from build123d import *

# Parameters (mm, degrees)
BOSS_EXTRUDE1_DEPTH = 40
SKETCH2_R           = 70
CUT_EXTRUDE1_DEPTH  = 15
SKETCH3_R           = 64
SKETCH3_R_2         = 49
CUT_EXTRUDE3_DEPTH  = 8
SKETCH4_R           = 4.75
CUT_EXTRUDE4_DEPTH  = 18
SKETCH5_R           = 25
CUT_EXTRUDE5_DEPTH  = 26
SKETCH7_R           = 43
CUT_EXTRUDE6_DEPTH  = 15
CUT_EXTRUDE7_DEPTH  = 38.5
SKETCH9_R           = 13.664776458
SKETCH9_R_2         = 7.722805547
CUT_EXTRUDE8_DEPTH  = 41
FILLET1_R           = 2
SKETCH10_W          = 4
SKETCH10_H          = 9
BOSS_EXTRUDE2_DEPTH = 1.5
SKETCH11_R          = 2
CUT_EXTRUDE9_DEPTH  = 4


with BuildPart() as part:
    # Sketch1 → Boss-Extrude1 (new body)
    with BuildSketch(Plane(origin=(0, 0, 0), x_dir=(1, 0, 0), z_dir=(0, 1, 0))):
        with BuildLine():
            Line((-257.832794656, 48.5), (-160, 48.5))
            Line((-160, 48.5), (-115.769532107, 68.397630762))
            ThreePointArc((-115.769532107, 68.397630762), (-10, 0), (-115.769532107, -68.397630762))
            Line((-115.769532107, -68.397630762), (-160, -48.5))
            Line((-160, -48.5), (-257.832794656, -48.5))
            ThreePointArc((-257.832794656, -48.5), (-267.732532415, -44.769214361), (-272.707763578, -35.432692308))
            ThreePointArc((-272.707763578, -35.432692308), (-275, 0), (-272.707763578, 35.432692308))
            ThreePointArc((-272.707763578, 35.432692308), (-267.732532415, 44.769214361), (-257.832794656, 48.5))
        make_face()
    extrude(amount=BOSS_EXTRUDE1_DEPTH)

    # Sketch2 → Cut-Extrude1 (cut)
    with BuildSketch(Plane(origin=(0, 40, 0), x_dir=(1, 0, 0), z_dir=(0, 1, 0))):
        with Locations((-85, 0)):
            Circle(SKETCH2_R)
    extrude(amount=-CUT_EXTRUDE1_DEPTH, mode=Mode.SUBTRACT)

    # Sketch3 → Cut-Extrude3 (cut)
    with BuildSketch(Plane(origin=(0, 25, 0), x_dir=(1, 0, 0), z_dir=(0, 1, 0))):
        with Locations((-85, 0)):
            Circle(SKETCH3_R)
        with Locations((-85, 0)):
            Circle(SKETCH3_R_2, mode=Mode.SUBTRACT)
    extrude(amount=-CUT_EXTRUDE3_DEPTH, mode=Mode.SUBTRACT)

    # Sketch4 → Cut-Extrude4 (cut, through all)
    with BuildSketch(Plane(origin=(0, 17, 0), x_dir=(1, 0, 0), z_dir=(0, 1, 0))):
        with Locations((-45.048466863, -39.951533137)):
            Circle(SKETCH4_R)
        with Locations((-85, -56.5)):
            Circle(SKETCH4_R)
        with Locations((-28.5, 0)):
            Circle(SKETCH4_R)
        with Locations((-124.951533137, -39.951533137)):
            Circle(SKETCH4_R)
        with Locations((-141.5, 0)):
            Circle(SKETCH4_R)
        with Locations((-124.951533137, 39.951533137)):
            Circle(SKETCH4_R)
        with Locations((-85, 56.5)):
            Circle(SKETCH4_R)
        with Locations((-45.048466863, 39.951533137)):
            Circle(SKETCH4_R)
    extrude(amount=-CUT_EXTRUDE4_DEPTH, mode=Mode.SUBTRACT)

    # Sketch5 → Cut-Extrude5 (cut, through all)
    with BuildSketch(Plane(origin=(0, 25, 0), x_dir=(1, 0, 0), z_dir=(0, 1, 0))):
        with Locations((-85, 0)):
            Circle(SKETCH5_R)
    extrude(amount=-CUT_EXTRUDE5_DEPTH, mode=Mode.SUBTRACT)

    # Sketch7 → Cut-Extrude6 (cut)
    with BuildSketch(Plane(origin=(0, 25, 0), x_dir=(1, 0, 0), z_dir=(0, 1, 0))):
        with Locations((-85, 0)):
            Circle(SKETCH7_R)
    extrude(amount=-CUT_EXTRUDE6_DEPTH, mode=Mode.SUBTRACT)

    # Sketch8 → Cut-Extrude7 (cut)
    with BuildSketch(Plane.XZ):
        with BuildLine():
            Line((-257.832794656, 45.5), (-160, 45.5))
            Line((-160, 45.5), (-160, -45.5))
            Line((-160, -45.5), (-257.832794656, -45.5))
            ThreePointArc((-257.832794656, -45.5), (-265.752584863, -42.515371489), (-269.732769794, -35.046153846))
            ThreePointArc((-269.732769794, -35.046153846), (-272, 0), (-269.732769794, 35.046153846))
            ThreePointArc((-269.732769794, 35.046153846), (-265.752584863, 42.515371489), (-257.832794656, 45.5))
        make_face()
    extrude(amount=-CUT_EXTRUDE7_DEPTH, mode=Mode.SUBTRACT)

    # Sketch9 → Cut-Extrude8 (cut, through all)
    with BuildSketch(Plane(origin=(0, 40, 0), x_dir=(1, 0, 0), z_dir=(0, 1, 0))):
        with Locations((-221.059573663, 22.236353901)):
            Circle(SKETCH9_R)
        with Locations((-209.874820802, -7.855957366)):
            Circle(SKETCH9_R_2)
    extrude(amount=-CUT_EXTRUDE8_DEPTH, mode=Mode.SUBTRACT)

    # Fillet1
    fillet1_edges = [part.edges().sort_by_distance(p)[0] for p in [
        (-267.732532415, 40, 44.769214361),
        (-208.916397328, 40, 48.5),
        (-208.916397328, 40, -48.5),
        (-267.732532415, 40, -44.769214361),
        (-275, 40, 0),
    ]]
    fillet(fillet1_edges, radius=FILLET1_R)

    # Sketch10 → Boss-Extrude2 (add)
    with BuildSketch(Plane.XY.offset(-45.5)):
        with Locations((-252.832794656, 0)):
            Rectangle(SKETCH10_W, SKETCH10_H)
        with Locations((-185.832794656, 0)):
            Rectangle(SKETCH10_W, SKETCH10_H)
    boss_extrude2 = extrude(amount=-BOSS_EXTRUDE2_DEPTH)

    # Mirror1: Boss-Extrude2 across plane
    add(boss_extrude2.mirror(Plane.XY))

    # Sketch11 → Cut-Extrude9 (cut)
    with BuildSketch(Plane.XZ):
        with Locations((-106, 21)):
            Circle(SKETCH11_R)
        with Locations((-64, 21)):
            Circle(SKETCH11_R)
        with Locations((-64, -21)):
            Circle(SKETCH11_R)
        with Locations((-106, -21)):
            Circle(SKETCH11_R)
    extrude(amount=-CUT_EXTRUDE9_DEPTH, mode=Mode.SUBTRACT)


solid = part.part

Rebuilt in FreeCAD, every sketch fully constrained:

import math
import FreeCAD as App
import Part
import Sketcher
from FreeCAD import Vector
Q = App.Units.Quantity


def edges_at(feature, points):
    """Names of the edges that pass closest to the given points."""
    edges = feature.Shape.Edges
    near = lambda p: min(range(len(edges)), key=lambda i: edges[i].distToShape(Part.Vertex(*p))[0])
    return sorted({f"Edge{near(p) + 1}" for p in points})

doc = App.newDocument("Part")
params = doc.addObject("Spreadsheet::Sheet", "Params")
for row, (alias, value) in enumerate([
    ("sketch1_radius", "15 mm"),
    ("sketch1_radius2", "275 mm"),
    ("sketch1_radius3", "75 mm"),
    ("pad1_length", "40 mm"),
    ("sketch2_diameter", "140 mm"),
    ("pocket1_length", "15 mm"),
    ("sketch3_diameter", "128 mm"),
    ("sketch3_diameter2", "98 mm"),
    ("pocket2_length", "8 mm"),
    ("sketch4_diameter", "9.5 mm"),
    ("sketch5_diameter", "50 mm"),
    ("sketch6_diameter", "86 mm"),
    ("pocket5_length", "15 mm"),
    ("sketch7_radius", "12 mm"),
    ("sketch7_radius2", "272 mm"),
    ("sketch7_height", "91 mm"),
    ("pocket6_length", "38.5 mm"),
    ("fillet_radius", "2 mm"),
    ("sketch9_width", "4 mm"),
    ("sketch9_height", "9 mm"),
    ("pad2_length", "1.5 mm"),
    ("sketch10_diameter", "4 mm"),
    ("pocket8_length", "4 mm"),
], start=1):
    params.set(f"A{row}", alias)
    params.set(f"B{row}", "=" + value)
    params.setAlias(f"B{row}", alias)

body = doc.addObject("PartDesign::Body", "Body")

# Sketch on XZ plane
sketch1 = body.newObject("Sketcher::SketchObject", "Sketch")
sketch1.AttachmentSupport = (doc.getObject("XZ_Plane"), [""])
sketch1.MapMode = "FlatFace"
sketch1.addGeometry([
    Part.LineSegment(Vector(-160, -48.5, 0), Vector(-257.832795, -48.5, 0)),  # 0
    Part.ArcOfCircle(Part.Circle(Vector(-257.832795, -33.5, 0), Vector(0, 0, 1), 15), math.radians(-172.597079), math.radians(-90)),  # 1
    Part.ArcOfCircle(Part.Circle(Vector(0, 0, 0), Vector(0, 0, 1), 275), math.radians(172.597079), math.radians(187.402921)),  # 2
    Part.ArcOfCircle(Part.Circle(Vector(-257.832795, 33.5, 0), Vector(0, 0, 1), 15), math.radians(90), math.radians(172.597079)),  # 3
    Part.LineSegment(Vector(-257.832795, 48.5, 0), Vector(-160, 48.5, 0)),  # 4
    Part.LineSegment(Vector(-160, 48.5, 0), Vector(-115.769532, 68.397631, 0)),  # 5
    Part.ArcOfCircle(Part.Circle(Vector(-85, 0, 0), Vector(0, 0, 1), 75), math.radians(-114.221196), math.radians(114.221196)),  # 6
    Part.LineSegment(Vector(-115.769532, -68.397631, 0), Vector(-160, -48.5, 0)),  # 7
], False)
sketch1.addConstraint([
    Sketcher.Constraint("Tangent", 0, 2, 1, 2),
    Sketcher.Constraint("Tangent", 1, 1, 2, 2),
    Sketcher.Constraint("Tangent", 2, 1, 3, 2),
    Sketcher.Constraint("Tangent", 3, 1, 4, 1),
    Sketcher.Constraint("Coincident", 4, 2, 5, 1),
    Sketcher.Constraint("Tangent", 5, 2, 6, 2),
    Sketcher.Constraint("Tangent", 6, 1, 7, 1),
    Sketcher.Constraint("Coincident", 7, 2, 0, 1),
    Sketcher.Constraint("Horizontal", 0),
    Sketcher.Constraint("Horizontal", 4),
    Sketcher.Constraint("Coincident", 2, 3, -1, 1),
    Sketcher.Constraint("Equal", 1, 3),
    Sketcher.Constraint("Symmetric", 5, 2, 6, 1, -1),
    Sketcher.Constraint("Vertical", 1, 3, 3, 3),
    Sketcher.Constraint("Radius", 1, Q("15 mm")),
    Sketcher.Constraint("Radius", 2, Q("275 mm")),
    Sketcher.Constraint("Radius", 6, Q("75 mm")),
    Sketcher.Constraint("DistanceX", 6, 3, -1, 1, Q("85 mm")),
    Sketcher.Constraint("DistanceX", 4, 2, -1, 1, Q("160 mm")),
    Sketcher.Constraint("DistanceY", 1, 3, 3, 3, Q("67 mm")),
])
sketch1.setExpression("Constraints[14]", "Params.sketch1_radius")
sketch1.setExpression("Constraints[15]", "Params.sketch1_radius2")
sketch1.setExpression("Constraints[16]", "Params.sketch1_radius3")
pad1 = body.newObject("PartDesign::Pad", "Pad")
pad1.Profile = sketch1
pad1.setExpression("Length", "Params.pad1_length")
pad1.Reversed = True

# Sketch on XZ plane
sketch2 = body.newObject("Sketcher::SketchObject", "Sketch001")
sketch2.AttachmentSupport = (doc.getObject("XZ_Plane"), [""])
sketch2.MapMode = "FlatFace"
sketch2.AttachmentOffset = App.Placement(Vector(0, 0, -40), App.Rotation())
sketch2.addGeometry(Part.Circle(Vector(-85, 0, 0), Vector(0, 0, 1), 70), False)
sketch2.addConstraint([
    Sketcher.Constraint("PointOnObject", 0, 3, -1),
    Sketcher.Constraint("Diameter", 0, Q("140 mm")),
    Sketcher.Constraint("DistanceX", 0, 3, -1, 1, Q("85 mm")),
])
sketch2.setExpression("Constraints[1]", "Params.sketch2_diameter")
pocket1 = body.newObject("PartDesign::Pocket", "Pocket")
pocket1.Profile = sketch2
pocket1.setExpression("Length", "Params.pocket1_length")
pocket1.Reversed = True

# Sketch on XZ plane
sketch3 = body.newObject("Sketcher::SketchObject", "Sketch002")
sketch3.AttachmentSupport = (doc.getObject("XZ_Plane"), [""])
sketch3.MapMode = "FlatFace"
sketch3.AttachmentOffset = App.Placement(Vector(0, 0, -25), App.Rotation())
sketch3.addGeometry([
    Part.Circle(Vector(-85, 0, 0), Vector(0, 0, 1), 64),
    Part.Circle(Vector(-85, 0, 0), Vector(0, 0, 1), 49),
], False)
sketch3.addConstraint([
    Sketcher.Constraint("Coincident", 1, 3, 0, 3),
    Sketcher.Constraint("PointOnObject", 0, 3, -1),
    Sketcher.Constraint("Diameter", 0, Q("128 mm")),
    Sketcher.Constraint("Diameter", 1, Q("98 mm")),
    Sketcher.Constraint("DistanceX", 0, 3, -1, 1, Q("85 mm")),
])
sketch3.setExpression("Constraints[2]", "Params.sketch3_diameter")
sketch3.setExpression("Constraints[3]", "Params.sketch3_diameter2")
pocket2 = body.newObject("PartDesign::Pocket", "Pocket001")
pocket2.Profile = sketch3
pocket2.setExpression("Length", "Params.pocket2_length")
pocket2.Reversed = True

# Sketch on XZ plane
sketch4 = body.newObject("Sketcher::SketchObject", "Sketch003")
sketch4.AttachmentSupport = (doc.getObject("XZ_Plane"), [""])
sketch4.MapMode = "FlatFace"
sketch4.AttachmentOffset = App.Placement(Vector(0, 0, -17), App.Rotation())
sketch4.addGeometry([
    Part.Circle(Vector(-45.048467, 39.951533, 0), Vector(0, 0, 1), 4.75),  # 0
    Part.Circle(Vector(-85, 56.5, 0), Vector(0, 0, 1), 4.75),  # 1
    Part.Circle(Vector(-28.5, 0, 0), Vector(0, 0, 1), 4.75),  # 2
    Part.Circle(Vector(-124.951533, 39.951533, 0), Vector(0, 0, 1), 4.75),  # 3
    Part.Circle(Vector(-141.5, 0, 0), Vector(0, 0, 1), 4.75),  # 4
    Part.Circle(Vector(-124.951533, -39.951533, 0), Vector(0, 0, 1), 4.75),  # 5
    Part.Circle(Vector(-85, -56.5, 0), Vector(0, 0, 1), 4.75),  # 6
    Part.Circle(Vector(-45.048467, -39.951533, 0), Vector(0, 0, 1), 4.75),  # 7
], False)
sketch4.addConstraint([
    Sketcher.Constraint("Equal", 0, 1),
    Sketcher.Constraint("Equal", 1, 2),
    Sketcher.Constraint("Equal", 2, 3),
    Sketcher.Constraint("Equal", 3, 4),
    Sketcher.Constraint("Equal", 4, 5),
    Sketcher.Constraint("Equal", 5, 6),
    Sketcher.Constraint("Equal", 6, 7),
    Sketcher.Constraint("Symmetric", 3, 3, 5, 3, -1),
    Sketcher.Constraint("Symmetric", 1, 3, 6, 3, -1),
    Sketcher.Constraint("Symmetric", 0, 3, 7, 3, -1),
    Sketcher.Constraint("PointOnObject", 2, 3, -1),
    Sketcher.Constraint("PointOnObject", 4, 3, -1),
    Sketcher.Constraint("Horizontal", 0, 3, 3, 3),
    Sketcher.Constraint("Diameter", 0, Q("9.5 mm")),
    Sketcher.Constraint("DistanceX", 1, 3, -1, 1, Q("85 mm")),
    Sketcher.Constraint("DistanceX", 4, 3, 2, 3, Q("113 mm")),
    Sketcher.Constraint("DistanceY", -1, 1, 1, 3, Q("56.5 mm")),
    Sketcher.Constraint("DistanceX", 2, 3, -1, 1, Q("28.5 mm")),
    Sketcher.Constraint("DistanceX", 0, 3, -1, 1, Q("45.048467 mm")),
    Sketcher.Constraint("DistanceY", -1, 1, 0, 3, Q("39.951533 mm")),
    Sketcher.Constraint("DistanceX", 3, 3, -1, 1, Q("124.951533 mm")),
])
sketch4.setExpression("Constraints[13]", "Params.sketch4_diameter")
pocket3 = body.newObject("PartDesign::Pocket", "Pocket002")
pocket3.Profile = sketch4
pocket3.Type = "ThroughAll"
pocket3.Reversed = True

# Sketch on XZ plane
sketch5 = body.newObject("Sketcher::SketchObject", "Sketch004")
sketch5.AttachmentSupport = (doc.getObject("XZ_Plane"), [""])
sketch5.MapMode = "FlatFace"
sketch5.AttachmentOffset = App.Placement(Vector(0, 0, -25), App.Rotation())
sketch5.addGeometry(Part.Circle(Vector(-85, 0, 0), Vector(0, 0, 1), 25), False)
sketch5.addConstraint([
    Sketcher.Constraint("PointOnObject", 0, 3, -1),
    Sketcher.Constraint("Diameter", 0, Q("50 mm")),
    Sketcher.Constraint("DistanceX", 0, 3, -1, 1, Q("85 mm")),
])
sketch5.setExpression("Constraints[1]", "Params.sketch5_diameter")
pocket4 = body.newObject("PartDesign::Pocket", "Pocket003")
pocket4.Profile = sketch5
pocket4.Type = "ThroughAll"
pocket4.Reversed = True

# Sketch on XZ plane
sketch6 = body.newObject("Sketcher::SketchObject", "Sketch005")
sketch6.AttachmentSupport = (doc.getObject("XZ_Plane"), [""])
sketch6.MapMode = "FlatFace"
sketch6.AttachmentOffset = App.Placement(Vector(0, 0, -25), App.Rotation())
sketch6.addGeometry(Part.Circle(Vector(-85, 0, 0), Vector(0, 0, 1), 43), False)
sketch6.addConstraint([
    Sketcher.Constraint("PointOnObject", 0, 3, -1),
    Sketcher.Constraint("Diameter", 0, Q("86 mm")),
    Sketcher.Constraint("DistanceX", 0, 3, -1, 1, Q("85 mm")),
])
sketch6.setExpression("Constraints[1]", "Params.sketch6_diameter")
pocket5 = body.newObject("PartDesign::Pocket", "Pocket004")
pocket5.Profile = sketch6
pocket5.setExpression("Length", "Params.pocket5_length")
pocket5.Reversed = True

# Sketch on XZ plane
sketch7 = body.newObject("Sketcher::SketchObject", "Sketch006")
sketch7.AttachmentSupport = (doc.getObject("XZ_Plane"), [""])
sketch7.MapMode = "FlatFace"
sketch7.addGeometry([
    Part.LineSegment(Vector(-160, 45.5, 0), Vector(-257.832795, 45.5, 0)),  # 0
    Part.ArcOfCircle(Part.Circle(Vector(-257.832795, 33.5, 0), Vector(0, 0, 1), 12), math.radians(90), math.radians(172.597079)),  # 1
    Part.ArcOfCircle(Part.Circle(Vector(0, 0, 0), Vector(0, 0, 1), 272), math.radians(172.597079), math.radians(187.402921)),  # 2
    Part.ArcOfCircle(Part.Circle(Vector(-257.832795, -33.5, 0), Vector(0, 0, 1), 12), math.radians(-172.597079), math.radians(-90)),  # 3
    Part.LineSegment(Vector(-257.832795, -45.5, 0), Vector(-160, -45.5, 0)),  # 4
    Part.LineSegment(Vector(-160, -45.5, 0), Vector(-160, 45.5, 0)),  # 5
], False)
sketch7.addConstraint([
    Sketcher.Constraint("Tangent", 0, 2, 1, 1),
    Sketcher.Constraint("Tangent", 1, 2, 2, 1),
    Sketcher.Constraint("Tangent", 2, 2, 3, 1),
    Sketcher.Constraint("Tangent", 3, 2, 4, 1),
    Sketcher.Constraint("Coincident", 4, 2, 5, 1),
    Sketcher.Constraint("Coincident", 5, 2, 0, 1),
    Sketcher.Constraint("Horizontal", 0),
    Sketcher.Constraint("Horizontal", 4),
    Sketcher.Constraint("Vertical", 5),
    Sketcher.Constraint("Coincident", 2, 3, -1, 1),
    Sketcher.Constraint("Equal", 1, 3),
    Sketcher.Constraint("Vertical", 1, 3, 3, 3),
    Sketcher.Constraint("Radius", 1, Q("12 mm")),
    Sketcher.Constraint("Radius", 2, Q("272 mm")),
    Sketcher.Constraint("DistanceY", 5, 1, 5, 2, Q("91 mm")),
    Sketcher.Constraint("DistanceX", 4, 2, -1, 1, Q("160 mm")),
])
sketch7.setExpression("Constraints[12]", "Params.sketch7_radius")
sketch7.setExpression("Constraints[13]", "Params.sketch7_radius2")
sketch7.setExpression("Constraints[14]", "Params.sketch7_height")
pocket6 = body.newObject("PartDesign::Pocket", "Pocket005")
pocket6.Profile = sketch7
pocket6.setExpression("Length", "Params.pocket6_length")

# Sketch on XZ plane
sketch8 = body.newObject("Sketcher::SketchObject", "Sketch007")
sketch8.AttachmentSupport = (doc.getObject("XZ_Plane"), [""])
sketch8.MapMode = "FlatFace"
sketch8.AttachmentOffset = App.Placement(Vector(0, 0, -40), App.Rotation())
sketch8.addGeometry([
    Part.Circle(Vector(-221.059574, -22.236354, 0), Vector(0, 0, 1), 13.664776),
    Part.Circle(Vector(-209.874821, 7.855957, 0), Vector(0, 0, 1), 7.722806),
], False)
sketch8.addConstraint([
    Sketcher.Constraint("Diameter", 1, Q("15.445611 mm")),
    Sketcher.Constraint("Diameter", 0, Q("27.329553 mm")),
    Sketcher.Constraint("DistanceX", 1, 3, -1, 1, Q("209.874821 mm")),
    Sketcher.Constraint("DistanceY", 0, 3, 1, 3, Q("30.092311 mm")),
    Sketcher.Constraint("DistanceX", 0, 3, -1, 1, Q("221.059574 mm")),
    Sketcher.Constraint("DistanceY", 0, 3, -1, 1, Q("22.236354 mm")),
])
pocket7 = body.newObject("PartDesign::Pocket", "Pocket006")
pocket7.Profile = sketch8
pocket7.Type = "ThroughAll"
pocket7.Reversed = True
doc.recompute()

fillet = body.newObject("PartDesign::Fillet", "Fillet")
fillet.Base = (pocket7, edges_at(pocket7, [
    (-267.733, 40, 44.769),
    (-208.916, 40, 48.5),
    (-208.916, 40, -48.5),
    (-267.733, 40, -44.769),
    (-275, 40, 0),
]))
fillet.setExpression("Radius", "Params.fillet_radius")

# Sketch on XY plane
sketch9 = body.newObject("Sketcher::SketchObject", "Sketch008")
sketch9.AttachmentSupport = (doc.getObject("XY_Plane"), [""])
sketch9.MapMode = "FlatFace"
sketch9.AttachmentOffset = App.Placement(Vector(0, 0, -45.5), App.Rotation())
sketch9.addGeometry([
    Part.LineSegment(Vector(-254.832795, 4.5, 0), Vector(-254.832795, -4.5, 0)),  # 0
    Part.LineSegment(Vector(-254.832795, -4.5, 0), Vector(-250.832795, -4.5, 0)),  # 1
    Part.LineSegment(Vector(-250.832795, -4.5, 0), Vector(-250.832795, 4.5, 0)),  # 2
    Part.LineSegment(Vector(-250.832795, 4.5, 0), Vector(-254.832795, 4.5, 0)),  # 3
    Part.LineSegment(Vector(-187.832795, 4.5, 0), Vector(-187.832795, -4.5, 0)),  # 4
    Part.LineSegment(Vector(-187.832795, -4.5, 0), Vector(-183.832795, -4.5, 0)),  # 5
    Part.LineSegment(Vector(-183.832795, -4.5, 0), Vector(-183.832795, 4.5, 0)),  # 6
    Part.LineSegment(Vector(-183.832795, 4.5, 0), Vector(-187.832795, 4.5, 0)),  # 7
], False)
sketch9.addConstraint([
    Sketcher.Constraint("Coincident", 0, 2, 1, 1),
    Sketcher.Constraint("Coincident", 1, 2, 2, 1),
    Sketcher.Constraint("Coincident", 2, 2, 3, 1),
    Sketcher.Constraint("Coincident", 3, 2, 0, 1),
    Sketcher.Constraint("Coincident", 4, 2, 5, 1),
    Sketcher.Constraint("Coincident", 5, 2, 6, 1),
    Sketcher.Constraint("Coincident", 6, 2, 7, 1),
    Sketcher.Constraint("Coincident", 7, 2, 4, 1),
    Sketcher.Constraint("Vertical", 0),
    Sketcher.Constraint("Horizontal", 1),
    Sketcher.Constraint("Vertical", 2),
    Sketcher.Constraint("Horizontal", 3),
    Sketcher.Constraint("Vertical", 4),
    Sketcher.Constraint("Horizontal", 5),
    Sketcher.Constraint("Vertical", 6),
    Sketcher.Constraint("Horizontal", 7),
    Sketcher.Constraint("Horizontal", 1, 2, 4, 2),
    Sketcher.Constraint("Horizontal", 3, 2, 6, 2),
    Sketcher.Constraint("Equal", 3, 5),
    Sketcher.Constraint("DistanceX", 1, 1, 1, 2, Q("4 mm")),
    Sketcher.Constraint("DistanceY", 0, 2, 0, 1, Q("9 mm")),
    Sketcher.Constraint("DistanceX", 1, 2, 4, 2, Q("63 mm")),
    Sketcher.Constraint("DistanceY", 0, 2, -1, 1, Q("4.5 mm")),
    Sketcher.Constraint("DistanceX", 0, 2, -1, 1, Q("254.832795 mm")),
])
sketch9.setExpression("Constraints[19]", "Params.sketch9_width")
sketch9.setExpression("Constraints[20]", "Params.sketch9_height")
pad2 = body.newObject("PartDesign::Pad", "Pad001")
pad2.Profile = sketch9
pad2.setExpression("Length", "Params.pad2_length")
pad2.Reversed = True
doc.recompute()

mirrored = body.newObject("PartDesign::Mirrored", "Mirrored")
mirrored.Originals = [pad2]
mirrored.MirrorPlane = (doc.getObject("XY_Plane"), [""])
body.Tip = mirrored

# Sketch on XZ plane
sketch10 = body.newObject("Sketcher::SketchObject", "Sketch009")
sketch10.AttachmentSupport = (doc.getObject("XZ_Plane"), [""])
sketch10.MapMode = "FlatFace"
sketch10.addGeometry([
    Part.Circle(Vector(-106, 21, 0), Vector(0, 0, 1), 2),
    Part.Circle(Vector(-64, 21, 0), Vector(0, 0, 1), 2),
    Part.Circle(Vector(-64, -21, 0), Vector(0, 0, 1), 2),
    Part.Circle(Vector(-106, -21, 0), Vector(0, 0, 1), 2),
], False)
sketch10.addConstraint([
    Sketcher.Constraint("Equal", 0, 1),
    Sketcher.Constraint("Equal", 1, 2),
    Sketcher.Constraint("Equal", 2, 3),
    Sketcher.Constraint("Symmetric", 1, 3, 2, 3, -1),
    Sketcher.Constraint("Symmetric", 0, 3, 3, 3, -1),
    Sketcher.Constraint("Horizontal", 0, 3, 1, 3),
    Sketcher.Constraint("Diameter", 0, Q("4 mm")),
    Sketcher.Constraint("DistanceX", 0, 3, -1, 1, Q("106 mm")),
    Sketcher.Constraint("DistanceY", -1, 1, 0, 3, Q("21 mm")),
    Sketcher.Constraint("DistanceX", 1, 3, -1, 1, Q("64 mm")),
])
sketch10.setExpression("Constraints[6]", "Params.sketch10_diameter")
pocket8 = body.newObject("PartDesign::Pocket", "Pocket007")
pocket8.Profile = sketch10
pocket8.setExpression("Length", "Params.pocket8_length")

doc.recompute()
